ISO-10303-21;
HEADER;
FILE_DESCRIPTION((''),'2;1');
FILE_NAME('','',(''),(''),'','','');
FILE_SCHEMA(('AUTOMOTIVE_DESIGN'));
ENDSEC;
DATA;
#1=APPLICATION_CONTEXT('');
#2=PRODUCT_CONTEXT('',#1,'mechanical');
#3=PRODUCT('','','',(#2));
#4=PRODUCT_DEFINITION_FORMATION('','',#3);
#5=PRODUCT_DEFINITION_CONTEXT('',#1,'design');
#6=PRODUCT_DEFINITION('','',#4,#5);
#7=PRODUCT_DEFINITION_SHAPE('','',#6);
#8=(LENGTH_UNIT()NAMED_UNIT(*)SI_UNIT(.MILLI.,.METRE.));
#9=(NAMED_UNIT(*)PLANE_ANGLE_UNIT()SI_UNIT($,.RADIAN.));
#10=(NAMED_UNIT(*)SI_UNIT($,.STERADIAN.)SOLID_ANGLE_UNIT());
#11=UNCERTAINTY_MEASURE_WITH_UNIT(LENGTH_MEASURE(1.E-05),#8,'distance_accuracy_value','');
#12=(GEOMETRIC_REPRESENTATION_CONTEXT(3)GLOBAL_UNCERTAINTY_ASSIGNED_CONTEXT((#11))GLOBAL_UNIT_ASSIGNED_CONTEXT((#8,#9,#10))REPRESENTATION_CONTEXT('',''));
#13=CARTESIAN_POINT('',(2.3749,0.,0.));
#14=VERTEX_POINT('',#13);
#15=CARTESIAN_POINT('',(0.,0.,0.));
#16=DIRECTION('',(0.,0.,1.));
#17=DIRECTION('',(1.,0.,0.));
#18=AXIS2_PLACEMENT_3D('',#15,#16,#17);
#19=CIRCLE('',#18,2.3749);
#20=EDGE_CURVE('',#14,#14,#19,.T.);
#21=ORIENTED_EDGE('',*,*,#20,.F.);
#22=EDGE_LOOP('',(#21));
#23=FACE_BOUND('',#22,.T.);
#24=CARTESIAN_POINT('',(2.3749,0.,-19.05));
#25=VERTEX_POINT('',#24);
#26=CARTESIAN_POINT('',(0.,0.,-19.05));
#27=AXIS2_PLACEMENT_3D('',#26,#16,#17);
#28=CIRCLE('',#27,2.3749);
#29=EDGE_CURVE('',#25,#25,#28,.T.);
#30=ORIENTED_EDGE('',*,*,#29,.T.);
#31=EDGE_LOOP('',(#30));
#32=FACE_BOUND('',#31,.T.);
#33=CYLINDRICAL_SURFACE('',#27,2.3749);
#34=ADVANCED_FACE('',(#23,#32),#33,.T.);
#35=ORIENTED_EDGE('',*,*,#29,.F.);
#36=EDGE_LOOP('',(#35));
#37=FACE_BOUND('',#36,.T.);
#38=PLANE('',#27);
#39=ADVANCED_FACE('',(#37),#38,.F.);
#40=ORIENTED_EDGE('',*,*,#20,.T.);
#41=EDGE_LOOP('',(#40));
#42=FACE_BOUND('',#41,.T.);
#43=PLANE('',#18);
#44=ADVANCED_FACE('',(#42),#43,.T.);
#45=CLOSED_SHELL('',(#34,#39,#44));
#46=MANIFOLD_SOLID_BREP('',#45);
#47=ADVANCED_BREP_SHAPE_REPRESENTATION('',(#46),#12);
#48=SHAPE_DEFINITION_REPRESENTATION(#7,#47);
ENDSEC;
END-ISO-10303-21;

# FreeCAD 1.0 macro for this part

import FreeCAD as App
import Part
import Sketcher
from FreeCAD import Vector
Q = App.Units.Quantity

doc = App.newDocument("Part")
body = doc.addObject("PartDesign::Body", "Body")

# Sketch on XY plane
sketch1 = doc.addObject("Sketcher::SketchObject", "Sketch")
body.addObject(sketch1)
sketch1.AttachmentSupport = (doc.XY_Plane, [""])
sketch1.MapMode = "FlatFace"
sketch1.addGeometry(Part.Circle(Vector(0, 0, 0), Vector(0, 0, 1), 2.3749), False)
sketch1.addConstraint([
    Sketcher.Constraint("Coincident", 0, 3, -1, 1),
    Sketcher.Constraint("Diameter", 0, Q("0.187 in")),
])
pad1 = doc.addObject("PartDesign::Pad", "Pad")
body.addObject(pad1)
pad1.Profile = sketch1
pad1.Length = Q("0.75 in")
pad1.Reversed = True

doc.recompute()
